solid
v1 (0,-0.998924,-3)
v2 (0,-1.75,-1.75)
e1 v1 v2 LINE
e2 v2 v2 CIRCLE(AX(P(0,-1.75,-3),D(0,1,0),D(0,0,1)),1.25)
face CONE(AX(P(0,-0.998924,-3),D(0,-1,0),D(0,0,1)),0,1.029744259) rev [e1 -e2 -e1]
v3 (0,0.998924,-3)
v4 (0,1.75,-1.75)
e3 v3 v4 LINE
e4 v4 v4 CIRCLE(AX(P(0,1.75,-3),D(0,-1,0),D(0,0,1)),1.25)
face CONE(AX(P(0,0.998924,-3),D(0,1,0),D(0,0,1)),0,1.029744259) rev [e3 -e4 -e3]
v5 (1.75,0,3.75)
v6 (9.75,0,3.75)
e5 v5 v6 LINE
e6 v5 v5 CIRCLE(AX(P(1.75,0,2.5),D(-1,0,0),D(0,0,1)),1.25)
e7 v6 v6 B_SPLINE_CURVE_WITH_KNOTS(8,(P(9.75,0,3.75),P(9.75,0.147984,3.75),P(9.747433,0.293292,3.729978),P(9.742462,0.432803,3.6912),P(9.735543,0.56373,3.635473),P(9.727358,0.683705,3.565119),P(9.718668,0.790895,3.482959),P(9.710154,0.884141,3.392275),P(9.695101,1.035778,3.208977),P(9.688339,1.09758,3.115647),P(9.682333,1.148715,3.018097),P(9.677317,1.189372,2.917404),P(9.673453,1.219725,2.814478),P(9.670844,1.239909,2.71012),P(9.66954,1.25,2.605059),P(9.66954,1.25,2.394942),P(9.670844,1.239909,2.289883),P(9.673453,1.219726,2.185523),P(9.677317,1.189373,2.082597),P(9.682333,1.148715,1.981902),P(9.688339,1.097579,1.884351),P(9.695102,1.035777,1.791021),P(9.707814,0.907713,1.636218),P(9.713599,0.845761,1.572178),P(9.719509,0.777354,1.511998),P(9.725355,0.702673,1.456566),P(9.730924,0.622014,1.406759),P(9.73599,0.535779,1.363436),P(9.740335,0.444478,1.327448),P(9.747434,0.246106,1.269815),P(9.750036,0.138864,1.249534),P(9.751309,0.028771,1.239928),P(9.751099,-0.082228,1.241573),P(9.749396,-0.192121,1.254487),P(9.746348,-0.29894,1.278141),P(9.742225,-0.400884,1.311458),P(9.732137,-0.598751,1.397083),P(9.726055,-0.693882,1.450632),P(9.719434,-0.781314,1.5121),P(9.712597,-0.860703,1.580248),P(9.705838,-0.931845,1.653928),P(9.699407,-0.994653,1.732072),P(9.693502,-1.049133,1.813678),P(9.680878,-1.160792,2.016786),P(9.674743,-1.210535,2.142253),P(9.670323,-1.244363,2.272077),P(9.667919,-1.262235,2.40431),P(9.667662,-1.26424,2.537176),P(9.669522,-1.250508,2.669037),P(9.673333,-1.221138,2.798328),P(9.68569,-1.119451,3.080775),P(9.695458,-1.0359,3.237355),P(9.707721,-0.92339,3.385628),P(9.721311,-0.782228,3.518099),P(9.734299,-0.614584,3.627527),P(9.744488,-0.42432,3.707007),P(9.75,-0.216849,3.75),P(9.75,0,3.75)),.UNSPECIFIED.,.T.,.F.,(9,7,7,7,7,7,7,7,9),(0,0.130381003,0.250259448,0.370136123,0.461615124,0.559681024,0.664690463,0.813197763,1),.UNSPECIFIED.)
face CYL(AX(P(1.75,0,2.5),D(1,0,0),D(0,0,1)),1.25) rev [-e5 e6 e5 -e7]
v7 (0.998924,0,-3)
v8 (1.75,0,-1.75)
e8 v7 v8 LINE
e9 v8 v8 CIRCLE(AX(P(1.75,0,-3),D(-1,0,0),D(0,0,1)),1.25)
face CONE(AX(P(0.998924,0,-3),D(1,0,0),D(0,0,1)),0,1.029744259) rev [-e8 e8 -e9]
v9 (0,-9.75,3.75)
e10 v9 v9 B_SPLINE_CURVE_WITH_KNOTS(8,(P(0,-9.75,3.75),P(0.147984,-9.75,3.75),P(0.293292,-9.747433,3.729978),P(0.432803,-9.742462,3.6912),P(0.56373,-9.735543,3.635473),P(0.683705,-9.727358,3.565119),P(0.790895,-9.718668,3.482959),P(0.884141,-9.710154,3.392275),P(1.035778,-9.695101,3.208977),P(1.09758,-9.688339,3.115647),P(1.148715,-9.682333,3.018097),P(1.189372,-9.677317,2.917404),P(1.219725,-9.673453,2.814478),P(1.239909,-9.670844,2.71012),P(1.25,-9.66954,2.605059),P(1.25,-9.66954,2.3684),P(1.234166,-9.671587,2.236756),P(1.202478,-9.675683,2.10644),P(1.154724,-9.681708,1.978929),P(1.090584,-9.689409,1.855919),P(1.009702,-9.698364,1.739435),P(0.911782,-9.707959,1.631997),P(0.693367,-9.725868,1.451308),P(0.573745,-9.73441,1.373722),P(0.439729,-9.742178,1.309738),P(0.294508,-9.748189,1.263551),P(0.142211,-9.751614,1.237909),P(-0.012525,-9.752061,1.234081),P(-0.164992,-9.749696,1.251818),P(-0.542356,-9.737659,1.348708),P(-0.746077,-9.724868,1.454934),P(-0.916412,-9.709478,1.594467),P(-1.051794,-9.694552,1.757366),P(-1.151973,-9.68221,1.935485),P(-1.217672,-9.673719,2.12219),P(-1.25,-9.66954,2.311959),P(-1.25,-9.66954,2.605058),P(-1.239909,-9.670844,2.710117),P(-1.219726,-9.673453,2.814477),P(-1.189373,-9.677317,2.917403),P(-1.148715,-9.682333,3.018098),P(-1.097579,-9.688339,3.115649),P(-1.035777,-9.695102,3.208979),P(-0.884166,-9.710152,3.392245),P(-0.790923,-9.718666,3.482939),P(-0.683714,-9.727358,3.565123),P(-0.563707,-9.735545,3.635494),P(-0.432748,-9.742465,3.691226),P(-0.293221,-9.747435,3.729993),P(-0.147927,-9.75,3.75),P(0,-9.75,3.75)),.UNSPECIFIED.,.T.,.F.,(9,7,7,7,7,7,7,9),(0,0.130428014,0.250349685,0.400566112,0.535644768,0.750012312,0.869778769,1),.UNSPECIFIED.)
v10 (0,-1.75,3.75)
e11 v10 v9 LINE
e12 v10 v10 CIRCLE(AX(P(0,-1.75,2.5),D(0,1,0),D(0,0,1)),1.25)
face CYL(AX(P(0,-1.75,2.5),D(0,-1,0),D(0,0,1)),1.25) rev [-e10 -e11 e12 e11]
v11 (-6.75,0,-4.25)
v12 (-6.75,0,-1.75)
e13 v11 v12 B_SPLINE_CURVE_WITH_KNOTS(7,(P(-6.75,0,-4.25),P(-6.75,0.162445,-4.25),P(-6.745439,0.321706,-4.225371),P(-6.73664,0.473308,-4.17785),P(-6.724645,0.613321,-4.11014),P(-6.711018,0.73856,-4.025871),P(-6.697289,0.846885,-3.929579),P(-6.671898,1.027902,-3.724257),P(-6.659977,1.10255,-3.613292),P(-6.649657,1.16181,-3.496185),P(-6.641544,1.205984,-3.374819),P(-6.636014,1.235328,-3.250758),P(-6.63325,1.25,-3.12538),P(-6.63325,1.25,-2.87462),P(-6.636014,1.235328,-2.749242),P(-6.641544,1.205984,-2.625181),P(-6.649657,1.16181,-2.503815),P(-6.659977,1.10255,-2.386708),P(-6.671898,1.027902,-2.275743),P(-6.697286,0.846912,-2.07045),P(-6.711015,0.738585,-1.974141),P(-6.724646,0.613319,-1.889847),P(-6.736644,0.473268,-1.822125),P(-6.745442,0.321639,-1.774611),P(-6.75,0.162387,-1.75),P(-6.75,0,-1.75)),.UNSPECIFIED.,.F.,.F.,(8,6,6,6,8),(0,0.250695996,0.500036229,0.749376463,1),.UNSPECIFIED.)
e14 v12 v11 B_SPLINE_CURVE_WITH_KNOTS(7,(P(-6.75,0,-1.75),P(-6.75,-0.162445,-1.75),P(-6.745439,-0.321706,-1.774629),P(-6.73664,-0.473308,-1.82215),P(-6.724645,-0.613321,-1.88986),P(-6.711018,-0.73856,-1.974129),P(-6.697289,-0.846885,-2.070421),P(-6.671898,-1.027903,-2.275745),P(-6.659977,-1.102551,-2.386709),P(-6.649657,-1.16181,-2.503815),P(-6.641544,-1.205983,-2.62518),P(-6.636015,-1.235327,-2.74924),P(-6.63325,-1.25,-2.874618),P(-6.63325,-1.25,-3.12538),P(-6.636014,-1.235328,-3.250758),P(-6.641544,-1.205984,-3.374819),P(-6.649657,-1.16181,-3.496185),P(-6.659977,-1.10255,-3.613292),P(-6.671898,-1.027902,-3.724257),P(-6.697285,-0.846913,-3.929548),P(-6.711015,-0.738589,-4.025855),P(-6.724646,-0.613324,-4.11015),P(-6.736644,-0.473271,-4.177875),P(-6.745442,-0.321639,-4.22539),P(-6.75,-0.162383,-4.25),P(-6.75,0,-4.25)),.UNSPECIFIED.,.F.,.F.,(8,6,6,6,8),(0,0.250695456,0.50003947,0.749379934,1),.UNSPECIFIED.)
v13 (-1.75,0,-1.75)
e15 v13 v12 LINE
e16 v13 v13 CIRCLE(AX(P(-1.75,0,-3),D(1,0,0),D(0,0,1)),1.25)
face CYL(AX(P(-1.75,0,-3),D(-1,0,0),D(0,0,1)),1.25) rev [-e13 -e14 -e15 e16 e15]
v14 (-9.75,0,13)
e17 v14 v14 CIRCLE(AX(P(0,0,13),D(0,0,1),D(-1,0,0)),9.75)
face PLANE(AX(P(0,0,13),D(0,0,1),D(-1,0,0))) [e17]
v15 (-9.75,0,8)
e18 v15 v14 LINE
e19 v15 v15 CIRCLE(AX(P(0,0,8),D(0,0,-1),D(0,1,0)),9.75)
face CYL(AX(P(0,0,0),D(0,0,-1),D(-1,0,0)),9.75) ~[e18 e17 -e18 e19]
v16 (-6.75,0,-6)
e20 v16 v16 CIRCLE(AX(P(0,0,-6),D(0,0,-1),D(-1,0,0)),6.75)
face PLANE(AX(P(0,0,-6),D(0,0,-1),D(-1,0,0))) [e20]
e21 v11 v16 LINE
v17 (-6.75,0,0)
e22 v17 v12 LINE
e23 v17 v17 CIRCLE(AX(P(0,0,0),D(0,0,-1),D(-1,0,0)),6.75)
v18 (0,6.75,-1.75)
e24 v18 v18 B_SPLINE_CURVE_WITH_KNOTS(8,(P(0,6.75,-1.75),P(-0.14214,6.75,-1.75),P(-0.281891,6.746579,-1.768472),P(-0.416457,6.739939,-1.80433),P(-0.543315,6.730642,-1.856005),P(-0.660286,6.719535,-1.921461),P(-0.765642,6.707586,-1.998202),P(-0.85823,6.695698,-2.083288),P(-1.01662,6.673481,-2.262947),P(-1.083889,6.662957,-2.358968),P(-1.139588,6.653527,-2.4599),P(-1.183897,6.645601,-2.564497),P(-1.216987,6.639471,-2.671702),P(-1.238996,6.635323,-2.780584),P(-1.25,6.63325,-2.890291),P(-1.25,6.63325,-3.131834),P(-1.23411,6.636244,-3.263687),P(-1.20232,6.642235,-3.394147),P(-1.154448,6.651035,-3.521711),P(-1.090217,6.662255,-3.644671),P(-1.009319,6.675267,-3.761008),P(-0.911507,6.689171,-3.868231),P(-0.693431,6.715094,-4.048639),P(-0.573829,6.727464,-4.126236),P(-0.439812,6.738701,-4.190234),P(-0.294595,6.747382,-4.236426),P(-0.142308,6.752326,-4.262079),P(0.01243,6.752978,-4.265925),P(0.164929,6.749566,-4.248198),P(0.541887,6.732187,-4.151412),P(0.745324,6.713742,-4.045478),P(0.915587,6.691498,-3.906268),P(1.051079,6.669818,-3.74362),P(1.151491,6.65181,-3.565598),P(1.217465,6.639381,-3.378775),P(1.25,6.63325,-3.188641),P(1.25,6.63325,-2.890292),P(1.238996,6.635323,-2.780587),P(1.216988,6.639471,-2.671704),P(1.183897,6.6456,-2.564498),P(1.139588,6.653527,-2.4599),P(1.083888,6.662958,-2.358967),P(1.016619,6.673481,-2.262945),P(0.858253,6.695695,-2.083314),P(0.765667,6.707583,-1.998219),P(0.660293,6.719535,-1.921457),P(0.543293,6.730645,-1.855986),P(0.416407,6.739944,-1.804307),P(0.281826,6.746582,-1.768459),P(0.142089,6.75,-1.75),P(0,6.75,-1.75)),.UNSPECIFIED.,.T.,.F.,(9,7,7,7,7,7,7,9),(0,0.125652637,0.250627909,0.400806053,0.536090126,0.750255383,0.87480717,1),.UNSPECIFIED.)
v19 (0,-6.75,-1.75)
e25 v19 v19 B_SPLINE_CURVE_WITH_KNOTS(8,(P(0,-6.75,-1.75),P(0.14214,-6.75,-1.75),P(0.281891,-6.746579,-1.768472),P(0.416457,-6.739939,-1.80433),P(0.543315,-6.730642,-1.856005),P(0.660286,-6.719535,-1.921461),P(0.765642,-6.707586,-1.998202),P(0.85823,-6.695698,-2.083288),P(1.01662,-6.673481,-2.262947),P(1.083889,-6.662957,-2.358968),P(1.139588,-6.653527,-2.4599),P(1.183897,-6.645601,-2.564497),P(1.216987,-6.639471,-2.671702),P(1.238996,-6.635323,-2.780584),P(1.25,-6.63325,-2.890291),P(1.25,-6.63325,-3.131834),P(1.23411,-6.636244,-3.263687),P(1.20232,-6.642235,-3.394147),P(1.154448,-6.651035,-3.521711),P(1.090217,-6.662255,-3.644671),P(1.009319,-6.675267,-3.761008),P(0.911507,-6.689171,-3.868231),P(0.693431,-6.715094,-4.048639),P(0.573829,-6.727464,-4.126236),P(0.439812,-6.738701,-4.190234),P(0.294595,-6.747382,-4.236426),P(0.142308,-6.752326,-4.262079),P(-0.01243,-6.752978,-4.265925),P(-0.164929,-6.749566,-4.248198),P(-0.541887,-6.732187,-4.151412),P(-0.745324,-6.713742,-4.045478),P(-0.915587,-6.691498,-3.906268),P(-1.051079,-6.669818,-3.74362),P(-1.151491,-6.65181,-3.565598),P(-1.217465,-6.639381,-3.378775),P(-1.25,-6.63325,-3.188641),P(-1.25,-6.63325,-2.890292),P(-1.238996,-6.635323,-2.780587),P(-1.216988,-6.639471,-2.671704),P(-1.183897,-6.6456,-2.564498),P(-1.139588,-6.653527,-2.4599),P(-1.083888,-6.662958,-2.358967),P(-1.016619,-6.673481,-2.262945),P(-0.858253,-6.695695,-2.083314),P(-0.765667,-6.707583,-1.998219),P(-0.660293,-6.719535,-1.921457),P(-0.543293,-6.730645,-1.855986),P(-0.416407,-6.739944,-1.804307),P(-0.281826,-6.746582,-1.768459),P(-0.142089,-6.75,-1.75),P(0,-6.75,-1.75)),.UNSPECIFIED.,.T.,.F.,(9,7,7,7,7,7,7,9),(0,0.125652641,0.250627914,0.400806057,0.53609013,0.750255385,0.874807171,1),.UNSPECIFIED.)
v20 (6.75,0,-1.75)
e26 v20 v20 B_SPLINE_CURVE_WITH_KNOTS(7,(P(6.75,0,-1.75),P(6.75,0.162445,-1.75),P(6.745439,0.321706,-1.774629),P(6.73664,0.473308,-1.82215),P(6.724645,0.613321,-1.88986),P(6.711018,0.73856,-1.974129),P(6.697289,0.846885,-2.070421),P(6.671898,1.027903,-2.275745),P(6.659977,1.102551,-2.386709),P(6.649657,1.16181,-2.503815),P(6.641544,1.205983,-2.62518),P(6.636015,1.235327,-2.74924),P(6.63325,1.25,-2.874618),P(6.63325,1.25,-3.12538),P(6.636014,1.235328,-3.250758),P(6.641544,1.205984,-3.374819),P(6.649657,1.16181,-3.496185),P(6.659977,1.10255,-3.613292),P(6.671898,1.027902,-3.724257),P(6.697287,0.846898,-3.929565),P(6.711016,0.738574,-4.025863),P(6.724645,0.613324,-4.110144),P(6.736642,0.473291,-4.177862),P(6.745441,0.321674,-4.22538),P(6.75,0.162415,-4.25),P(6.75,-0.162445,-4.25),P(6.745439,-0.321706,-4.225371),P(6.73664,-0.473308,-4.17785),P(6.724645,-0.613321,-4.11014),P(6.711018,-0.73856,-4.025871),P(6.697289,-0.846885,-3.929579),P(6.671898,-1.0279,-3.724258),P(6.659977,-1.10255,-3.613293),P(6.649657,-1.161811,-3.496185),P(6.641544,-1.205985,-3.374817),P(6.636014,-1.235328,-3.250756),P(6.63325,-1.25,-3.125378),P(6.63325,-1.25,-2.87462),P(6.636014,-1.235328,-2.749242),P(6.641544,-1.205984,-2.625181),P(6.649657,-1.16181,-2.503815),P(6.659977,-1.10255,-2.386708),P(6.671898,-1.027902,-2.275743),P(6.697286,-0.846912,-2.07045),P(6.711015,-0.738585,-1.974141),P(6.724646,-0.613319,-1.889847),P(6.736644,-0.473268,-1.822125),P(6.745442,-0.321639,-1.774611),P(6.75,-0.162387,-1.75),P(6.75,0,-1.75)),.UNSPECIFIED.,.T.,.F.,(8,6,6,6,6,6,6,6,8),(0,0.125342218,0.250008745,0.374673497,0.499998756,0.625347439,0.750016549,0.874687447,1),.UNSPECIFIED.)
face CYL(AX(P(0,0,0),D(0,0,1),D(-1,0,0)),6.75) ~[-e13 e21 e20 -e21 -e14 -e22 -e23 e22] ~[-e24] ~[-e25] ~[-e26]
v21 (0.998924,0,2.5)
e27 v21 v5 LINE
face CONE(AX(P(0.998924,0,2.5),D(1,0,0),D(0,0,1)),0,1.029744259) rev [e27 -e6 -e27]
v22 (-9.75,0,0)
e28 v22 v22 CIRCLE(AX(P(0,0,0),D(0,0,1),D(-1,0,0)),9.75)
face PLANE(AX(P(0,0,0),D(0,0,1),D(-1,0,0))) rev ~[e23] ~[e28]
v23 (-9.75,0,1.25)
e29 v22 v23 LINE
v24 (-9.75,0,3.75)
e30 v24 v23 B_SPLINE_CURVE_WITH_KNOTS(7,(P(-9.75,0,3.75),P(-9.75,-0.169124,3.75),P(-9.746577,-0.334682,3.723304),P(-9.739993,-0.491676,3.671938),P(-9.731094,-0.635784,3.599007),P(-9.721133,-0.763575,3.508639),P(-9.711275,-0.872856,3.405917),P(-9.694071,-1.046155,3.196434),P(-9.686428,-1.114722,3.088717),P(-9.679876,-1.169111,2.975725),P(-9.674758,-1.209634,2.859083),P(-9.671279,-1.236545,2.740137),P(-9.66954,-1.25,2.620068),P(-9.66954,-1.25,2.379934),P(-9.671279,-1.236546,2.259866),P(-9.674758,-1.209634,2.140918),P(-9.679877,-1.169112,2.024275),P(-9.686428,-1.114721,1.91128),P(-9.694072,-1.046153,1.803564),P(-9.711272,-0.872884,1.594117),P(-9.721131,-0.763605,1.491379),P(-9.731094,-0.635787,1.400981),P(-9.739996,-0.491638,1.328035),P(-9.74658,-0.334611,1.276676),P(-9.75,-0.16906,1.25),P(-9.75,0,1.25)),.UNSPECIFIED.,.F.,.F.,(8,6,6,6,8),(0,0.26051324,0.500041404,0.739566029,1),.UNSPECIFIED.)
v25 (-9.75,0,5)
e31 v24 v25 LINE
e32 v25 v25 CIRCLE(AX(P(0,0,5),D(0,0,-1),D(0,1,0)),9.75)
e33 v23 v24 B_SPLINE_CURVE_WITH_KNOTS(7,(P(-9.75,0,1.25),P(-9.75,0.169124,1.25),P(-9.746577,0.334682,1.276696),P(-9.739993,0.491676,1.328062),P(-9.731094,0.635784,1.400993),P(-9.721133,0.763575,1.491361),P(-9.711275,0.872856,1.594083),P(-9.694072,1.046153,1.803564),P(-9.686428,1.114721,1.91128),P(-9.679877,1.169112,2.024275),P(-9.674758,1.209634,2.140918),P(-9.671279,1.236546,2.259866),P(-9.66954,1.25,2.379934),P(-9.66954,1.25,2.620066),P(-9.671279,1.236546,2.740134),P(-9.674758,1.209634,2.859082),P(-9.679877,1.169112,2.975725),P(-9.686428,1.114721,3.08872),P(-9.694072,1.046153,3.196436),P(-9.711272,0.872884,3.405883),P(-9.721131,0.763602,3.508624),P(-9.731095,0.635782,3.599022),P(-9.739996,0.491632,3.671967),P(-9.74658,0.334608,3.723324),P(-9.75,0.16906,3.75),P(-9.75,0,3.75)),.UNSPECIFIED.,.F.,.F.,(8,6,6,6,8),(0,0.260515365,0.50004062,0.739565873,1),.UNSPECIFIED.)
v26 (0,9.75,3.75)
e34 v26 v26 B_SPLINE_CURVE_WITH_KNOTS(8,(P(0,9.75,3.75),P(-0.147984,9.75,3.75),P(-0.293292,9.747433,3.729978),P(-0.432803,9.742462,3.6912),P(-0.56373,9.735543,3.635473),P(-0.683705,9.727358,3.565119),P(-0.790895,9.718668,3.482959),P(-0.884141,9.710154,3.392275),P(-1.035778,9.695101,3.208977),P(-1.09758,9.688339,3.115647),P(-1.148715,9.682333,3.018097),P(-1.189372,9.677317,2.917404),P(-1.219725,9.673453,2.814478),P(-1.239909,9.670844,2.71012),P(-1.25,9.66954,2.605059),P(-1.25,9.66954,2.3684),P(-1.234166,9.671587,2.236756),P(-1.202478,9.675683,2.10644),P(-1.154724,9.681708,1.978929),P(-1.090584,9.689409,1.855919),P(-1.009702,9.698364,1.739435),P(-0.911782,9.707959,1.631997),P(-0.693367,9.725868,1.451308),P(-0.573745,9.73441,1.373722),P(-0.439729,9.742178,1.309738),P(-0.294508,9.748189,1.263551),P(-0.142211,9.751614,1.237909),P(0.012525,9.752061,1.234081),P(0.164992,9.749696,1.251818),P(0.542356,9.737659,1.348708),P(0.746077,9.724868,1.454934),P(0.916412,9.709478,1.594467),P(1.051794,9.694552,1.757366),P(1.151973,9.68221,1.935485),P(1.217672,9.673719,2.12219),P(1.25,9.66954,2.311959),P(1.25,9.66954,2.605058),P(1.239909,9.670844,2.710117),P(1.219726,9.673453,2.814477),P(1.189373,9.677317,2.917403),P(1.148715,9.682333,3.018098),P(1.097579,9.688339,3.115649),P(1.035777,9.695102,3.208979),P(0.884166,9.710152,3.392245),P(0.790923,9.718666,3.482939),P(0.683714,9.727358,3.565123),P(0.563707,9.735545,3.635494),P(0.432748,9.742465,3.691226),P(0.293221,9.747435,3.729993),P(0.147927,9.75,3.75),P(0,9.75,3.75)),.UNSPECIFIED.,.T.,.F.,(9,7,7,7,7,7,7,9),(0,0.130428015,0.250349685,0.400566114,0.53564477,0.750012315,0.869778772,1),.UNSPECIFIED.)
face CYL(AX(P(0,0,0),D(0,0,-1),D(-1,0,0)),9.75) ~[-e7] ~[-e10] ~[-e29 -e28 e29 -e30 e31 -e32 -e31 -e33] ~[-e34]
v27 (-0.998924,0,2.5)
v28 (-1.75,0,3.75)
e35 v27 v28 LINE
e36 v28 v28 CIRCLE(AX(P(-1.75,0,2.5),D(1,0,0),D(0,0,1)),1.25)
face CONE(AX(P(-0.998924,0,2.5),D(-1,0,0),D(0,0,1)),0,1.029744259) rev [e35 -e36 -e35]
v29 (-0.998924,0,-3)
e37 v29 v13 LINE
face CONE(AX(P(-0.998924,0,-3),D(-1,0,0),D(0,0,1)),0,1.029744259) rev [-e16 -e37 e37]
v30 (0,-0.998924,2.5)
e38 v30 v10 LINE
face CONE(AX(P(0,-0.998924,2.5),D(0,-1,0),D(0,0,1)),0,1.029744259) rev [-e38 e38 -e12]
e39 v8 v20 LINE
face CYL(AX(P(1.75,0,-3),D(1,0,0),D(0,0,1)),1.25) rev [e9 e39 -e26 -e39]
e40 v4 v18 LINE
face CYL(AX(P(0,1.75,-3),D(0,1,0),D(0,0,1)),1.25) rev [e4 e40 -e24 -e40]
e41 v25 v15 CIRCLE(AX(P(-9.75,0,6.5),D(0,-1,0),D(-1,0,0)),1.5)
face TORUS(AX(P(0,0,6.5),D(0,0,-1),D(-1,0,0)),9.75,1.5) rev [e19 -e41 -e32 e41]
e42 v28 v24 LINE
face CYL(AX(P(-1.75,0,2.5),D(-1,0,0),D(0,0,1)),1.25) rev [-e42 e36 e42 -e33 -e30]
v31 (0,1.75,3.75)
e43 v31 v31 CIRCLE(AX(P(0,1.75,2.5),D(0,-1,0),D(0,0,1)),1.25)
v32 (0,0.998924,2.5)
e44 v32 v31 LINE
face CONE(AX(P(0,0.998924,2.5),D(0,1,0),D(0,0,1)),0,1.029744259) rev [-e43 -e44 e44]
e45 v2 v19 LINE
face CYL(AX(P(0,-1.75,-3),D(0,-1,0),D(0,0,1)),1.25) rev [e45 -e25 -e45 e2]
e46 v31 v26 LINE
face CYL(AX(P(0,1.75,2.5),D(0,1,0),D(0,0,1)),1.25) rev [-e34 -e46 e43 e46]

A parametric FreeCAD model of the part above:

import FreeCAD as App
import Part
import Sketcher
Q = App.Units.Quantity


def add_polygon(sketch, points):
    """Adds a closed chain of lines whose ends are joined by coincident constraints."""
    first, n = sketch.GeometryCount, len(points)
    for a, b in zip(points, points[1:] + points[:1]):
        sketch.addGeometry(Part.LineSegment(App.Vector(*a, 0), App.Vector(*b, 0)), False)
    for i in range(n):
        sketch.addConstraint(Sketcher.Constraint("Coincident", first + i, 2, first + (i + 1) % n, 1))

doc = App.newDocument("Part")
body = doc.addObject("PartDesign::Body", "Body")

# Sketch on XY plane
sketch1 = body.newObject("Sketcher::SketchObject", "Sketch")
sketch1.AttachmentSupport = (doc.getObject("XY_Plane"), [""])
sketch1.MapMode = "FlatFace"
sketch1.addGeometry(Part.Circle(App.Vector(0, 0, 0), App.Vector(0, 0, 1), 9.75), False)
sketch1.addConstraint([
    Sketcher.Constraint("Coincident", 0, 3, -1, 1),
    Sketcher.Constraint("Diameter", 0, Q("19.5 mm")),
])
pad1 = body.newObject("PartDesign::Pad", "Pad")
pad1.Profile = sketch1
pad1.Length = 13

# Sketch on XZ plane
sketch2 = body.newObject("Sketcher::SketchObject", "Sketch001")
sketch2.AttachmentSupport = (doc.getObject("XZ_Plane"), [""])
sketch2.MapMode = "FlatFace"
sketch2.addGeometry(Part.Circle(App.Vector(9.75, 6.5, 0), App.Vector(0, 0, 1), 1.5), False)
sketch2.addConstraint([
    Sketcher.Constraint("Diameter", 0, Q("3 mm")),
    Sketcher.Constraint("DistanceY", -1, 1, 0, 3, Q("6.5 mm")),
    Sketcher.Constraint("DistanceX", -1, 1, 0, 3, Q("9.75 mm")),
])
groove = body.newObject("PartDesign::Groove", "Groove")
groove.Profile = sketch2
groove.ReferenceAxis = (sketch2, ["V_Axis"])
groove.Angle = 360

# Sketch on XY plane
sketch3 = body.newObject("Sketcher::SketchObject", "Sketch002")
sketch3.AttachmentSupport = (doc.getObject("XY_Plane"), [""])
sketch3.MapMode = "FlatFace"
sketch3.addGeometry(Part.Circle(App.Vector(0, 0, 0), App.Vector(0, 0, 1), 6.75), False)
sketch3.addConstraint([
    Sketcher.Constraint("Coincident", 0, 3, -1, 1),
    Sketcher.Constraint("Diameter", 0, Q("13.5 mm")),
])
pad2 = body.newObject("PartDesign::Pad", "Pad001")
pad2.Profile = sketch3
pad2.Length = 6
pad2.Reversed = True

# Sketch on YZ plane
sketch4 = body.newObject("Sketcher::SketchObject", "Sketch003")
sketch4.AttachmentSupport = (doc.getObject("YZ_Plane"), [""])
sketch4.MapMode = "FlatFace"
add_polygon(sketch4, [(0.998924, 2.5), (9.75, 2.5), (9.75, 3.75), (1.75, 3.75)])  # lines 0-3
sketch4.addGeometry(Part.LineSegment(App.Vector(9.75, 2.5, 0), App.Vector(0.998924, 2.5, 0)), True)  # axis
sketch4.addConstraint([
    Sketcher.Constraint("Horizontal", 0),
    Sketcher.Constraint("Vertical", 1),
    Sketcher.Constraint("Horizontal", 2),
    Sketcher.Constraint("Horizontal", 4),
    Sketcher.Constraint("Coincident", 4, 1, 0, 2),
    Sketcher.Constraint("Equal", 0, 4),
    Sketcher.Constraint("DistanceX", 2, 2, 2, 1, Q("8 mm")),
    Sketcher.Constraint("Angle", 3, Q("-121 deg")),
    Sketcher.Constraint("DistanceY", 1, 1, 1, 2, Q("1.25 mm")),
    Sketcher.Constraint("DistanceY", -1, 1, 0, 2, Q("2.5 mm")),
    Sketcher.Constraint("DistanceX", -1, 1, 0, 2, Q("9.75 mm")),
])
groove2 = body.newObject("PartDesign::Groove", "Groove001")
groove2.Profile = sketch4
groove2.ReferenceAxis = (sketch4, ["Axis0"])
groove2.Angle = 360
doc.recompute()

polarpattern = body.newObject("PartDesign::PolarPattern", "PolarPattern")
polarpattern.Originals = [groove2]
polarpattern.Axis = (doc.getObject("Z_Axis"), [""])
polarpattern.Angle = 360
polarpattern.Occurrences = 4
body.Tip = polarpattern

# Sketch on YZ plane
sketch5 = body.newObject("Sketcher::SketchObject", "Sketch004")
sketch5.AttachmentSupport = (doc.getObject("YZ_Plane"), [""])
sketch5.MapMode = "FlatFace"
add_polygon(sketch5, [(0.998924, -3), (6.75, -3), (6.75, -1.75), (1.75, -1.75)])  # lines 0-3
sketch5.addGeometry(Part.LineSegment(App.Vector(6.75, -3, 0), App.Vector(0.998924, -3, 0)), True)  # axis
sketch5.addConstraint([
    Sketcher.Constraint("Horizontal", 0),
    Sketcher.Constraint("Vertical", 1),
    Sketcher.Constraint("Horizontal", 2),
    Sketcher.Constraint("Horizontal", 4),
    Sketcher.Constraint("Coincident", 4, 1, 0, 2),
    Sketcher.Constraint("Equal", 0, 4),
    Sketcher.Constraint("DistanceX", 2, 2, 2, 1, Q("5 mm")),
    Sketcher.Constraint("Angle", 3, Q("-121 deg")),
    Sketcher.Constraint("DistanceY", 0, 2, -1, 1, Q("3 mm")),
    Sketcher.Constraint("DistanceY", 1, 1, 1, 2, Q("1.25 mm")),
    Sketcher.Constraint("DistanceX", -1, 1, 0, 2, Q("6.75 mm")),
])
groove3 = body.newObject("PartDesign::Groove", "Groove002")
groove3.Profile = sketch5
groove3.ReferenceAxis = (sketch5, ["Axis0"])
groove3.Angle = 360
doc.recompute()

polarpattern2 = body.newObject("PartDesign::PolarPattern", "PolarPattern001")
polarpattern2.Originals = [groove3]
polarpattern2.Axis = (doc.getObject("Z_Axis"), [""])
polarpattern2.Angle = 360
polarpattern2.Occurrences = 4
body.Tip = polarpattern2

doc.recompute()
